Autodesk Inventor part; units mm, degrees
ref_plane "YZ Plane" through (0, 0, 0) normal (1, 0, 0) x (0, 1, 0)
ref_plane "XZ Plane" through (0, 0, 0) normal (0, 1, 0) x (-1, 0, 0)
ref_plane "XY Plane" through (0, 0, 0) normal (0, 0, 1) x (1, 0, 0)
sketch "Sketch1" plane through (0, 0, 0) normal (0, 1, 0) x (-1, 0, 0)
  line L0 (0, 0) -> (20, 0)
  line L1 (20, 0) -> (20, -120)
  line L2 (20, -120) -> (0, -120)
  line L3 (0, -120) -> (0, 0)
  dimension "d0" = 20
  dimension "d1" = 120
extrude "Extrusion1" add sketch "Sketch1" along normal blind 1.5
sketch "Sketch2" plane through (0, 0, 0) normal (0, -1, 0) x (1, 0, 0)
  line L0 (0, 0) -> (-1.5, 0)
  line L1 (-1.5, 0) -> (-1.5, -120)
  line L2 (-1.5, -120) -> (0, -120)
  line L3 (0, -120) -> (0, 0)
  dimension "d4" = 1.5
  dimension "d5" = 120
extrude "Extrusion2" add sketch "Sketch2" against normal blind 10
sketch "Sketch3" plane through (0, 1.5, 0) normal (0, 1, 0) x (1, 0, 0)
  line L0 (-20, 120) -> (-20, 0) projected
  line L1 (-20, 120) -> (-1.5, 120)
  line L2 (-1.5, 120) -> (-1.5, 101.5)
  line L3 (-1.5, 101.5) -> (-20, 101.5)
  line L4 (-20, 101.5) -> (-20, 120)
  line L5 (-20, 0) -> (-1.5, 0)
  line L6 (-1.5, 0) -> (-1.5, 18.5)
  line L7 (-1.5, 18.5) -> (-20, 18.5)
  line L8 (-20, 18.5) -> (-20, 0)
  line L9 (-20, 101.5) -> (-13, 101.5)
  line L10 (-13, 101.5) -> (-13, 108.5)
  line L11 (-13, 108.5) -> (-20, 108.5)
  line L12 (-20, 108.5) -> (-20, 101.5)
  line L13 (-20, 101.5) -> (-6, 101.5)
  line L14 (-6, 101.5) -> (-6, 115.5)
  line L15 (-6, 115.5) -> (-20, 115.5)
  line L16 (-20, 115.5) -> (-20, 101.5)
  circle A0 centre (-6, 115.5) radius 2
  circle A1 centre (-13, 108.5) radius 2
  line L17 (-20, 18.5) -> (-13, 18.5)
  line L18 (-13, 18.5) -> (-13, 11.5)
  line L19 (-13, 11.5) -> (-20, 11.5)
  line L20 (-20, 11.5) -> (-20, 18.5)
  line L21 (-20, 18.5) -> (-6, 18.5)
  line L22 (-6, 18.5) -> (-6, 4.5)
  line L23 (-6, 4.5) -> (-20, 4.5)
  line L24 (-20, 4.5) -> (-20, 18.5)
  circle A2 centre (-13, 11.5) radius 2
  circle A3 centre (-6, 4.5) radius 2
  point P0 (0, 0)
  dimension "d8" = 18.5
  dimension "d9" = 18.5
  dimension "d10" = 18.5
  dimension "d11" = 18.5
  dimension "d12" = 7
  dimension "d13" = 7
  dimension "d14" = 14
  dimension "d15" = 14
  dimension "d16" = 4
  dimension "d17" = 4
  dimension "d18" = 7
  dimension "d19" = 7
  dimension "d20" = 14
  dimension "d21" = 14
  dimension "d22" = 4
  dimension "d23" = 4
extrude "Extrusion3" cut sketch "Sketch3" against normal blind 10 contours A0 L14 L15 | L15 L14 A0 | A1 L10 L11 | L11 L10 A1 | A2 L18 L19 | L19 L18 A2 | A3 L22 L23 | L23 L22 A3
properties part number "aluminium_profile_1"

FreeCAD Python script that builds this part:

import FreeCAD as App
import Part
import Sketcher
Q = App.Units.Quantity


def add_polygon(sketch, points):
    """Adds a closed chain of lines whose ends are joined by coincident constraints."""
    first, n = sketch.GeometryCount, len(points)
    for a, b in zip(points, points[1:] + points[:1]):
        sketch.addGeometry(Part.LineSegment(App.Vector(*a, 0), App.Vector(*b, 0)), False)
    for i in range(n):
        sketch.addConstraint(Sketcher.Constraint("Coincident", first + i, 2, first + (i + 1) % n, 1))

doc = App.newDocument("Part")
body = doc.addObject("PartDesign::Body", "Body")

sketch1 = body.newObject("Sketcher::SketchObject", "Sketch")
sketch1.AttachmentSupport = (doc.getObject("XZ_Plane"), [""])
sketch1.MapMode = "FlatFace"
add_polygon(sketch1, [(-20, 0), (0, 0), (0, -120), (-20, -120)])
sketch1.addConstraint([
    Sketcher.Constraint("Horizontal", 0),
    Sketcher.Constraint("Vertical", 1),
    Sketcher.Constraint("Horizontal", 2),
    Sketcher.Constraint("Vertical", 3),
    Sketcher.Constraint("Coincident", 0, 2, -1, 1),
    Sketcher.Constraint("DistanceX", 0, 1, 0, 2, Q("20 mm")),
    Sketcher.Constraint("DistanceY", 1, 2, 1, 1, Q("120 mm")),
])
pad1 = body.newObject("PartDesign::Pad", "Pad")
pad1.Profile = sketch1
pad1.Length = 1.5
pad1.Reversed = True

sketch2 = body.newObject("Sketcher::SketchObject", "Sketch001")
sketch2.AttachmentSupport = (doc.getObject("XZ_Plane"), [""])
sketch2.MapMode = "FlatFace"
add_polygon(sketch2, [(0, -120), (0, 0), (-1.5, 0), (-1.5, -120)])
sketch2.addConstraint([
    Sketcher.Constraint("Vertical", 0),
    Sketcher.Constraint("Horizontal", 1),
    Sketcher.Constraint("Vertical", 2),
    Sketcher.Constraint("Horizontal", 3),
    Sketcher.Constraint("Coincident", 0, 2, -1, 1),
    Sketcher.Constraint("DistanceY", 0, 1, 0, 2, Q("120 mm")),
    Sketcher.Constraint("DistanceX", 1, 2, 1, 1, Q("1.5 mm")),
])
pad2 = body.newObject("PartDesign::Pad", "Pad001")
pad2.Profile = sketch2
pad2.Length = 10
pad2.Reversed = True

sketch3 = body.newObject("Sketcher::SketchObject", "Sketch002")
sketch3.AttachmentSupport = (doc.getObject("XZ_Plane"), [""])
sketch3.MapMode = "FlatFace"
sketch3.AttachmentOffset = App.Placement(App.Vector(0, 0, -1.5), App.Rotation())
sketch3.addGeometry([
    Part.Circle(App.Vector(-6, -115.5, 0), App.Vector(0, 0, 1), 2),
    Part.Circle(App.Vector(-13, -108.5, 0), App.Vector(0, 0, 1), 2),
    Part.Circle(App.Vector(-13, -11.5, 0), App.Vector(0, 0, 1), 2),
    Part.Circle(App.Vector(-6, -4.5, 0), App.Vector(0, 0, 1), 2),
], False)
sketch3.addConstraint([
    Sketcher.Constraint("Equal", 0, 1),
    Sketcher.Constraint("Equal", 1, 2),
    Sketcher.Constraint("Equal", 2, 3),
    Sketcher.Constraint("Vertical", 1, 3, 2, 3),
    Sketcher.Constraint("Vertical", 0, 3, 3, 3),
    Sketcher.Constraint("Diameter", 0, Q("4 mm")),
    Sketcher.Constraint("DistanceX", 1, 3, 0, 3, Q("7 mm")),
    Sketcher.Constraint("DistanceY", 0, 3, 1, 3, Q("7 mm")),
    Sketcher.Constraint("DistanceY", 2, 3, 3, 3, Q("7 mm")),
    Sketcher.Constraint("DistanceX", 0, 3, -1, 1, Q("6 mm")),
    Sketcher.Constraint("DistanceY", 1, 3, 2, 3, Q("97 mm")),
    Sketcher.Constraint("DistanceY", 0, 3, -1, 1, Q("115.5 mm")),
])
pocket1 = body.newObject("PartDesign::Pocket", "Pocket")
pocket1.Profile = sketch3
pocket1.Length = 10
pocket1.Reversed = True

doc.recompute()
